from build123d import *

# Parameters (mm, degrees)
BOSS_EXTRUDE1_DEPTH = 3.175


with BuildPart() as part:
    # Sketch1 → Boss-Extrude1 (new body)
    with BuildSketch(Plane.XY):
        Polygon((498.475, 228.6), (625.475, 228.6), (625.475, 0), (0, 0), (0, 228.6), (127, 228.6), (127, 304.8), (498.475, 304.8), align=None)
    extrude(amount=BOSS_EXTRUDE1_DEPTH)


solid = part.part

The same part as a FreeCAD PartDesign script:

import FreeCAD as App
import Part
import Sketcher
from FreeCAD import Vector
Q = App.Units.Quantity

doc = App.newDocument("Part")
body = doc.addObject("PartDesign::Body", "Body")

sketch1 = body.newObject("Sketcher::SketchObject", "Sketch")
sketch1.AttachmentSupport = (doc.getObject("XY_Plane"), [""])
sketch1.MapMode = "FlatFace"
sketch1.addGeometry([
    Part.LineSegment(Vector(625, 229, 0), Vector(498, 229, 0)),
    Part.LineSegment(Vector(498, 229, 0), Vector(498, 305, 0)),
    Part.LineSegment(Vector(498, 305, 0), Vector(127, 305, 0)),
    Part.LineSegment(Vector(127, 305, 0), Vector(127, 229, 0)),
    Part.LineSegment(Vector(127, 229, 0), Vector(0, 229, 0)),
    Part.LineSegment(Vector(0, 229, 0), Vector(0, 0, 0)),
    Part.LineSegment(Vector(0, 0, 0), Vector(625, 0, 0)),
    Part.LineSegment(Vector(625, 0, 0), Vector(625, 229, 0)),
], False)
sketch1.addConstraint([
    Sketcher.Constraint("Coincident", 0, 2, 1, 1),
    Sketcher.Constraint("Coincident", 1, 2, 2, 1),
    Sketcher.Constraint("Coincident", 2, 2, 3, 1),
    Sketcher.Constraint("Coincident", 3, 2, 4, 1),
    Sketcher.Constraint("Coincident", 4, 2, 5, 1),
    Sketcher.Constraint("Coincident", 5, 2, 6, 1),
    Sketcher.Constraint("Coincident", 6, 2, 7, 1),
    Sketcher.Constraint("Coincident", 7, 2, 0, 1),
    Sketcher.Constraint("Horizontal", 0),
    Sketcher.Constraint("Vertical", 1),
    Sketcher.Constraint("Horizontal", 2),
    Sketcher.Constraint("Vertical", 3),
    Sketcher.Constraint("Horizontal", 4),
    Sketcher.Constraint("Vertical", 5),
    Sketcher.Constraint("Horizontal", 6),
    Sketcher.Constraint("Vertical", 7),
    Sketcher.Constraint("Coincident", 5, 2, -1, 1),
    Sketcher.Constraint("Horizontal", 0, 2, 3, 2),
    Sketcher.Constraint("Equal", 0, 4),
    Sketcher.Constraint("DistanceX", 0, 2, 0, 1, Q("5 in")),
    Sketcher.Constraint("DistanceY", 1, 1, 1, 2, Q("3 in")),
    Sketcher.Constraint("DistanceY", 5, 2, 5, 1, Q("9 in")),
    Sketcher.Constraint("DistanceX", 2, 2, 2, 1, Q("14.625 in")),
])
pad1 = body.newObject("PartDesign::Pad", "Pad")
pad1.Profile = sketch1
pad1.Length = Q("0.125 in")

doc.recompute()
